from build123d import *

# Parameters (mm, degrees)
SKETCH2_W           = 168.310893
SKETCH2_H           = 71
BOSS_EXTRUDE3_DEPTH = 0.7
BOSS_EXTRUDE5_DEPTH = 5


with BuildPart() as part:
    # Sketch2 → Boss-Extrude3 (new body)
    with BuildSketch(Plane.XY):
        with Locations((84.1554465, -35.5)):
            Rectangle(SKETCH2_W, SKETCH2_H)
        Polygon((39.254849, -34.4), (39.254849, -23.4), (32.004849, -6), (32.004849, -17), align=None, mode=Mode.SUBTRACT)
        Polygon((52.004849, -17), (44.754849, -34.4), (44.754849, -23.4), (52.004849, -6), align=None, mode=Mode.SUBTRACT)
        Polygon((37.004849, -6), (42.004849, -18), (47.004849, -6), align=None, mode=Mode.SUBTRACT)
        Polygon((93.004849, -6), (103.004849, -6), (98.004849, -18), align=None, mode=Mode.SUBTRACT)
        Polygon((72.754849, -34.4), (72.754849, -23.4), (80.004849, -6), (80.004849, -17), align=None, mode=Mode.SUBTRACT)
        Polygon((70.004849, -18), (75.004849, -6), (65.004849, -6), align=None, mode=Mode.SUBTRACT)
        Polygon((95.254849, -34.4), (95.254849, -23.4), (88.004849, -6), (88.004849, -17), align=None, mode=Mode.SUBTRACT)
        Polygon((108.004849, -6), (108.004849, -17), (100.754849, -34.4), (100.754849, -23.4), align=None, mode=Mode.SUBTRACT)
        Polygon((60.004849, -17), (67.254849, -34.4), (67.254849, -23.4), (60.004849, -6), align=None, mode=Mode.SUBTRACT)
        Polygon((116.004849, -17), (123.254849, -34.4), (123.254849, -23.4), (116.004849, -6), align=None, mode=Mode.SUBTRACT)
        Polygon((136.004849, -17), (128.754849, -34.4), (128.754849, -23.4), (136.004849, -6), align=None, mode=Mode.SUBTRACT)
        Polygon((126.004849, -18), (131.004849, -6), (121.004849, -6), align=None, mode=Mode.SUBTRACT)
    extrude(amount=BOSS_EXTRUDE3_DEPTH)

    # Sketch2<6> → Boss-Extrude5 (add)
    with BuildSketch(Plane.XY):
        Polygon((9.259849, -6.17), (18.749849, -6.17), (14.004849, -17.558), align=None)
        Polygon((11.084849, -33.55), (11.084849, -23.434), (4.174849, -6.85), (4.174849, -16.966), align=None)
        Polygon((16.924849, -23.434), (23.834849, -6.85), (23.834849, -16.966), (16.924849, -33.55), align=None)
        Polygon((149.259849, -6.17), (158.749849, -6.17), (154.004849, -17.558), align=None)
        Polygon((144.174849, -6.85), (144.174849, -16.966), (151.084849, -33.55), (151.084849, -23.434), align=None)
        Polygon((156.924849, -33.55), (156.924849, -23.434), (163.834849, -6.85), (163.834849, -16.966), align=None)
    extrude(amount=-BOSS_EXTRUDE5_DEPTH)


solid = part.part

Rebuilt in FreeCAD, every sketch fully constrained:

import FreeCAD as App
import Part
import Sketcher

doc = App.newDocument("Part")
body = doc.addObject("PartDesign::Body", "Body")

sketch1 = doc.addObject("Sketcher::SketchObject", "Sketch")
body.addObject(sketch1)
sketch1.AttachmentSupport = (doc.XY_Plane, [""])
sketch1.MapMode = "FlatFace"
sketch1.addGeometry([
    Part.LineSegment(App.Vector(0, 0, 0), App.Vector(0, -71, 0)),
    Part.LineSegment(App.Vector(0, -71, 0), App.Vector(168.310893, -71, 0)),
    Part.LineSegment(App.Vector(168.310893, -71, 0), App.Vector(168.310893, 0, 0)),
    Part.LineSegment(App.Vector(168.310893, 0, 0), App.Vector(0, 0, 0)),
    Part.LineSegment(App.Vector(39.254849, -23.4, 0), App.Vector(39.254849, -34.4, 0)),
    Part.LineSegment(App.Vector(39.254849, -34.4, 0), App.Vector(32.004849, -17, 0)),
    Part.LineSegment(App.Vector(32.004849, -17, 0), App.Vector(32.004849, -6, 0)),
    Part.LineSegment(App.Vector(32.004849, -6, 0), App.Vector(39.254849, -23.4, 0)),
    Part.LineSegment(App.Vector(52.004849, -6, 0), App.Vector(52.004849, -17, 0)),
    Part.LineSegment(App.Vector(52.004849, -17, 0), App.Vector(44.754849, -34.4, 0)),
    Part.LineSegment(App.Vector(44.754849, -34.4, 0), App.Vector(44.754849, -23.4, 0)),
    Part.LineSegment(App.Vector(44.754849, -23.4, 0), App.Vector(52.004849, -6, 0)),
    Part.LineSegment(App.Vector(67.254849, -34.4, 0), App.Vector(60.004849, -17, 0)),
    Part.LineSegment(App.Vector(60.004849, -17, 0), App.Vector(60.004849, -6, 0)),
    Part.LineSegment(App.Vector(60.004849, -6, 0), App.Vector(67.254849, -23.4, 0)),
    Part.LineSegment(App.Vector(67.254849, -23.4, 0), App.Vector(67.254849, -34.4, 0)),
    Part.LineSegment(App.Vector(80.004849, -17, 0), App.Vector(72.754849, -34.4, 0)),
    Part.LineSegment(App.Vector(72.754849, -34.4, 0), App.Vector(72.754849, -23.4, 0)),
    Part.LineSegment(App.Vector(72.754849, -23.4, 0), App.Vector(80.004849, -6, 0)),
    Part.LineSegment(App.Vector(80.004849, -6, 0), App.Vector(80.004849, -17, 0)),
    Part.LineSegment(App.Vector(42.004849, -18, 0), App.Vector(37.004849, -6, 0)),
    Part.LineSegment(App.Vector(37.004849, -6, 0), App.Vector(47.004849, -6, 0)),
    Part.LineSegment(App.Vector(47.004849, -6, 0), App.Vector(42.004849, -18, 0)),
    Part.LineSegment(App.Vector(75.004849, -6, 0), App.Vector(70.004849, -18, 0)),
    Part.LineSegment(App.Vector(70.004849, -18, 0), App.Vector(65.004849, -6, 0)),
    Part.LineSegment(App.Vector(65.004849, -6, 0), App.Vector(75.004849, -6, 0)),
    Part.LineSegment(App.Vector(95.254849, -23.4, 0), App.Vector(95.254849, -34.4, 0)),
    Part.LineSegment(App.Vector(95.254849, -34.4, 0), App.Vector(88.004849, -17, 0)),
    Part.LineSegment(App.Vector(88.004849, -17, 0), App.Vector(88.004849, -6, 0)),
    Part.LineSegment(App.Vector(88.004849, -6, 0), App.Vector(95.254849, -23.4, 0)),
    Part.LineSegment(App.Vector(100.754849, -23.4, 0), App.Vector(108.004849, -6, 0)),
    Part.LineSegment(App.Vector(108.004849, -6, 0), App.Vector(108.004849, -17, 0)),
    Part.LineSegment(App.Vector(108.004849, -17, 0), App.Vector(100.754849, -34.4, 0)),
    Part.LineSegment(App.Vector(100.754849, -34.4, 0), App.Vector(100.754849, -23.4, 0)),
    Part.LineSegment(App.Vector(123.254849, -34.4, 0), App.Vector(116.004849, -17, 0)),
    Part.LineSegment(App.Vector(116.004849, -17, 0), App.Vector(116.004849, -6, 0)),
    Part.LineSegment(App.Vector(116.004849, -6, 0), App.Vector(123.254849, -23.4, 0)),
    Part.LineSegment(App.Vector(123.254849, -23.4, 0), App.Vector(123.254849, -34.4, 0)),
    Part.LineSegment(App.Vector(136.004849, -6, 0), App.Vector(136.004849, -17, 0)),
    Part.LineSegment(App.Vector(136.004849, -17, 0), App.Vector(128.754849, -34.4, 0)),
    Part.LineSegment(App.Vector(128.754849, -34.4, 0), App.Vector(128.754849, -23.4, 0)),
    Part.LineSegment(App.Vector(128.754849, -23.4, 0), App.Vector(136.004849, -6, 0)),
    Part.LineSegment(App.Vector(98.004849, -18, 0), App.Vector(93.004849, -6, 0)),
    Part.LineSegment(App.Vector(93.004849, -6, 0), App.Vector(103.004849, -6, 0)),
    Part.LineSegment(App.Vector(103.004849, -6, 0), App.Vector(98.004849, -18, 0)),
    Part.LineSegment(App.Vector(131.004849, -6, 0), App.Vector(126.004849, -18, 0)),
    Part.LineSegment(App.Vector(126.004849, -18, 0), App.Vector(121.004849, -6, 0)),
    Part.LineSegment(App.Vector(121.004849, -6, 0), App.Vector(131.004849, -6, 0)),
], False)
sketch1.addConstraint([
    Sketcher.Constraint("Coincident", 0, 2, 1, 1),
    Sketcher.Constraint("Coincident", 1, 2, 2, 1),
    Sketcher.Constraint("Coincident", 2, 2, 3, 1),
    Sketcher.Constraint("Coincident", 3, 2, 0, 1),
    Sketcher.Constraint("Coincident", 4, 2, 5, 1),
    Sketcher.Constraint("Coincident", 5, 2, 6, 1),
    Sketcher.Constraint("Coincident", 6, 2, 7, 1),
    Sketcher.Constraint("Coincident", 7, 2, 4, 1),
    Sketcher.Constraint("Coincident", 8, 2, 9, 1),
    Sketcher.Constraint("Coincident", 9, 2, 10, 1),
    Sketcher.Constraint("Coincident", 10, 2, 11, 1),
    Sketcher.Constraint("Coincident", 11, 2, 8, 1),
    Sketcher.Constraint("Coincident", 12, 2, 13, 1),
    Sketcher.Constraint("Coincident", 13, 2, 14, 1),
    Sketcher.Constraint("Coincident", 14, 2, 15, 1),
    Sketcher.Constraint("Coincident", 15, 2, 12, 1),
    Sketcher.Constraint("Coincident", 16, 2, 17, 1),
    Sketcher.Constraint("Coincident", 17, 2, 18, 1),
    Sketcher.Constraint("Coincident", 18, 2, 19, 1),
    Sketcher.Constraint("Coincident", 19, 2, 16, 1),
    Sketcher.Constraint("Coincident", 20, 2, 21, 1),
    Sketcher.Constraint("Coincident", 21, 2, 22, 1),
    Sketcher.Constraint("Coincident", 22, 2, 20, 1),
    Sketcher.Constraint("Coincident", 23, 2, 24, 1),
    Sketcher.Constraint("Coincident", 24, 2, 25, 1),
    Sketcher.Constraint("Coincident", 25, 2, 23, 1),
    Sketcher.Constraint("Coincident", 26, 2, 27, 1),
    Sketcher.Constraint("Coincident", 27, 2, 28, 1),
    Sketcher.Constraint("Coincident", 28, 2, 29, 1),
    Sketcher.Constraint("Coincident", 29, 2, 26, 1),
    Sketcher.Constraint("Coincident", 30, 2, 31, 1),
    Sketcher.Constraint("Coincident", 31, 2, 32, 1),
    Sketcher.Constraint("Coincident", 32, 2, 33, 1),
    Sketcher.Constraint("Coincident", 33, 2, 30, 1),
    Sketcher.Constraint("Coincident", 34, 2, 35, 1),
    Sketcher.Constraint("Coincident", 35, 2, 36, 1),
    Sketcher.Constraint("Coincident", 36, 2, 37, 1),
    Sketcher.Constraint("Coincident", 37, 2, 34, 1),
    Sketcher.Constraint("Coincident", 38, 2, 39, 1),
    Sketcher.Constraint("Coincident", 39, 2, 40, 1),
    Sketcher.Constraint("Coincident", 40, 2, 41, 1),
    Sketcher.Constraint("Coincident", 41, 2, 38, 1),
    Sketcher.Constraint("Coincident", 42, 2, 43, 1),
    Sketcher.Constraint("Coincident", 43, 2, 44, 1),
    Sketcher.Constraint("Coincident", 44, 2, 42, 1),
    Sketcher.Constraint("Coincident", 45, 2, 46, 1),
    Sketcher.Constraint("Coincident", 46, 2, 47, 1),
    Sketcher.Constraint("Coincident", 47, 2, 45, 1),
    Sketcher.Constraint("Vertical", 0),
    Sketcher.Constraint("Horizontal", 1),
    Sketcher.Constraint("Vertical", 2),
    Sketcher.Constraint("Horizontal", 3),
    Sketcher.Constraint("Vertical", 4),
    Sketcher.Constraint("Vertical", 6),
    Sketcher.Constraint("Vertical", 8),
    Sketcher.Constraint("Vertical", 10),
    Sketcher.Constraint("Vertical", 13),
    Sketcher.Constraint("Vertical", 15),
    Sketcher.Constraint("Vertical", 17),
    Sketcher.Constraint("Vertical", 19),
    Sketcher.Constraint("Horizontal", 21),
    Sketcher.Constraint("Horizontal", 25),
    Sketcher.Constraint("Vertical", 26),
    Sketcher.Constraint("Vertical", 28),
    Sketcher.Constraint("Vertical", 31),
    Sketcher.Constraint("Vertical", 33),
    Sketcher.Constraint("Vertical", 35),
    Sketcher.Constraint("Vertical", 37),
    Sketcher.Constraint("Vertical", 38),
    Sketcher.Constraint("Vertical", 40),
    Sketcher.Constraint("Horizontal", 43),
    Sketcher.Constraint("Horizontal", 47),
    Sketcher.Constraint("Coincident", 3, 2, -1, 1),
    Sketcher.Constraint("Parallel", 5, 7),
    Sketcher.Constraint("Parallel", 9, 11),
    Sketcher.Constraint("Parallel", 7, 12),
    Sketcher.Constraint("Parallel", 12, 14),
    Sketcher.Constraint("Parallel", 11, 16),
    Sketcher.Constraint("Parallel", 16, 18),
    Sketcher.Constraint("Parallel", 14, 20),
    Sketcher.Constraint("Parallel", 18, 22),
    Sketcher.Constraint("Parallel", 22, 23),
    Sketcher.Constraint("Parallel", 20, 24),
    Sketcher.Constraint("Parallel", 24, 27),
    Sketcher.Constraint("Parallel", 27, 29),
    Sketcher.Constraint("Parallel", 23, 30),
    Sketcher.Constraint("Parallel", 30, 32),
    Sketcher.Constraint("Parallel", 29, 34),
    Sketcher.Constraint("Parallel", 34, 36),
    Sketcher.Constraint("Parallel", 32, 39),
    Sketcher.Constraint("Parallel", 39, 41),
    Sketcher.Constraint("Parallel", 36, 42),
    Sketcher.Constraint("Parallel", 41, 44),
    Sketcher.Constraint("Parallel", 44, 45),
    Sketcher.Constraint("Parallel", 42, 46),
    Sketcher.Constraint("Horizontal", 5, 2, 8, 2),
    Sketcher.Constraint("Horizontal", 4, 2, 9, 2),
    Sketcher.Constraint("Horizontal", 7, 2, 10, 2),
    Sketcher.Constraint("Horizontal", 8, 2, 12, 2),
    Sketcher.Constraint("Horizontal", 11, 2, 13, 2),
    Sketcher.Constraint("Horizontal", 10, 2, 14, 2),
    Sketcher.Constraint("Horizontal", 15, 2, 16, 2),
    Sketcher.Constraint("Horizontal", 14, 2, 17, 2),
    Sketcher.Constraint("Horizontal", 13, 2, 18, 2),
    Sketcher.Constraint("Horizontal", 18, 2, 20, 2),
    Sketcher.Constraint("Horizontal", 22, 2, 23, 2),
    Sketcher.Constraint("Horizontal", 21, 2, 24, 2),
    Sketcher.Constraint("Horizontal", 16, 2, 26, 2),
    Sketcher.Constraint("Horizontal", 19, 2, 27, 2),
    Sketcher.Constraint("Horizontal", 25, 2, 28, 2),
    Sketcher.Constraint("Horizontal", 28, 2, 30, 2),
    Sketcher.Constraint("Horizontal", 27, 2, 31, 2),
    Sketcher.Constraint("Horizontal", 26, 2, 32, 2),
    Sketcher.Constraint("Horizontal", 31, 2, 34, 2),
    Sketcher.Constraint("Horizontal", 30, 2, 35, 2),
    Sketcher.Constraint("Horizontal", 33, 2, 36, 2),
    Sketcher.Constraint("Horizontal", 34, 2, 38, 2),
    Sketcher.Constraint("Horizontal", 37, 2, 39, 2),
    Sketcher.Constraint("Horizontal", 36, 2, 40, 2),
    Sketcher.Constraint("Horizontal", 41, 2, 42, 2),
    Sketcher.Constraint("Horizontal", 23, 2, 44, 2),
    Sketcher.Constraint("Horizontal", 44, 2, 45, 2),
    Sketcher.Constraint("Horizontal", 43, 2, 46, 2),
    Sketcher.Constraint("Equal", 7, 9),
    Sketcher.Constraint("DistanceX", 21, 1, 21, 2, 10.0),
    Sketcher.Constraint("DistanceY", 0, 2, 0, 1, 71.0),
    Sketcher.Constraint("DistanceY", 4, 2, 4, 1, 11.0),
    Sketcher.Constraint("Distance", 20, 13.0),
    Sketcher.Constraint("DistanceY", 5, 2, -1, 1, 17.0),
    Sketcher.Constraint("DistanceX", 5, 2, 8, 2, 20.0),
    Sketcher.Constraint("DistanceX", 8, 2, 12, 2, 8.0),
    Sketcher.Constraint("DistanceX", 9, 2, 16, 2, 28.0),
    Sketcher.Constraint("DistanceX", 6, 2, 20, 2, 5.0),
    Sketcher.Constraint("DistanceX", 12, 2, 23, 2, 10.0),
    Sketcher.Constraint("DistanceX", 15, 2, 26, 2, 28.0),
    Sketcher.Constraint("DistanceX", 28, 2, 30, 2, 20.0),
    Sketcher.Constraint("DistanceX", 31, 2, 34, 2, 8.0),
    Sketcher.Constraint("DistanceX", 34, 2, 38, 2, 20.0),
    Sketcher.Constraint("DistanceX", 28, 2, 42, 2, 5.0),
    Sketcher.Constraint("DistanceX", 34, 2, 45, 2, 10.0),
    Sketcher.Constraint("DistanceY", 4, 2, -1, 1, 34.4),
    Sketcher.Constraint("DistanceX", 1, 1, 1, 2, 168.310893),
    Sketcher.Constraint("DistanceX", -1, 1, 4, 2, 39.254849),
])
pad1 = doc.addObject("PartDesign::Pad", "Pad")
body.addObject(pad1)
pad1.Profile = sketch1
pad1.Length = 0.7

sketch2 = doc.addObject("Sketcher::SketchObject", "Sketch001")
body.addObject(sketch2)
sketch2.AttachmentSupport = (doc.XY_Plane, [""])
sketch2.MapMode = "FlatFace"
sketch2.addGeometry([
    Part.LineSegment(App.Vector(18.749849, -6.17, 0), App.Vector(9.259849, -6.17, 0)),
    Part.LineSegment(App.Vector(9.259849, -6.17, 0), App.Vector(14.004849, -17.558, 0)),
    Part.LineSegment(App.Vector(14.004849, -17.558, 0), App.Vector(18.749849, -6.17, 0)),
    Part.LineSegment(App.Vector(11.084849, -33.55, 0), App.Vector(11.084849, -23.434, 0)),
    Part.LineSegment(App.Vector(11.084849, -23.434, 0), App.Vector(4.174849, -6.85, 0)),
    Part.LineSegment(App.Vector(4.174849, -6.85, 0), App.Vector(4.174849, -16.966, 0)),
    Part.LineSegment(App.Vector(4.174849, -16.966, 0), App.Vector(11.084849, -33.55, 0)),
    Part.LineSegment(App.Vector(23.834849, -6.85, 0), App.Vector(16.924849, -23.434, 0)),
    Part.LineSegment(App.Vector(16.924849, -23.434, 0), App.Vector(16.924849, -33.55, 0)),
    Part.LineSegment(App.Vector(16.924849, -33.55, 0), App.Vector(23.834849, -16.966, 0)),
    Part.LineSegment(App.Vector(23.834849, -16.966, 0), App.Vector(23.834849, -6.85, 0)),
    Part.LineSegment(App.Vector(158.749849, -6.17, 0), App.Vector(149.259849, -6.17, 0)),
    Part.LineSegment(App.Vector(149.259849, -6.17, 0), App.Vector(154.004849, -17.558, 0)),
    Part.LineSegment(App.Vector(154.004849, -17.558, 0), App.Vector(158.749849, -6.17, 0)),
    Part.LineSegment(App.Vector(144.174849, -6.85, 0), App.Vector(144.174849, -16.966, 0)),
    Part.LineSegment(App.Vector(144.174849, -16.966, 0), App.Vector(151.084849, -33.55, 0)),
    Part.LineSegment(App.Vector(151.084849, -33.55, 0), App.Vector(151.084849, -23.434, 0)),
    Part.LineSegment(App.Vector(151.084849, -23.434, 0), App.Vector(144.174849, -6.85, 0)),
    Part.LineSegment(App.Vector(156.924849, -23.434, 0), App.Vector(156.924849, -33.55, 0)),
    Part.LineSegment(App.Vector(156.924849, -33.55, 0), App.Vector(163.834849, -16.966, 0)),
    Part.LineSegment(App.Vector(163.834849, -16.966, 0), App.Vector(163.834849, -6.85, 0)),
    Part.LineSegment(App.Vector(163.834849, -6.85, 0), App.Vector(156.924849, -23.434, 0)),
], False)
sketch2.addConstraint([
    Sketcher.Constraint("Coincident", 0, 2, 1, 1),
    Sketcher.Constraint("Coincident", 1, 2, 2, 1),
    Sketcher.Constraint("Coincident", 2, 2, 0, 1),
    Sketcher.Constraint("Coincident", 3, 2, 4, 1),
    Sketcher.Constraint("Coincident", 4, 2, 5, 1),
    Sketcher.Constraint("Coincident", 5, 2, 6, 1),
    Sketcher.Constraint("Coincident", 6, 2, 3, 1),
    Sketcher.Constraint("Coincident", 7, 2, 8, 1),
    Sketcher.Constraint("Coincident", 8, 2, 9, 1),
    Sketcher.Constraint("Coincident", 9, 2, 10, 1),
    Sketcher.Constraint("Coincident", 10, 2, 7, 1),
    Sketcher.Constraint("Coincident", 11, 2, 12, 1),
    Sketcher.Constraint("Coincident", 12, 2, 13, 1),
    Sketcher.Constraint("Coincident", 13, 2, 11, 1),
    Sketcher.Constraint("Coincident", 14, 2, 15, 1),
    Sketcher.Constraint("Coincident", 15, 2, 16, 1),
    Sketcher.Constraint("Coincident", 16, 2, 17, 1),
    Sketcher.Constraint("Coincident", 17, 2, 14, 1),
    Sketcher.Constraint("Coincident", 18, 2, 19, 1),
    Sketcher.Constraint("Coincident", 19, 2, 20, 1),
    Sketcher.Constraint("Coincident", 20, 2, 21, 1),
    Sketcher.Constraint("Coincident", 21, 2, 18, 1),
    Sketcher.Constraint("Horizontal", 0),
    Sketcher.Constraint("Vertical", 3),
    Sketcher.Constraint("Vertical", 5),
    Sketcher.Constraint("Vertical", 8),
    Sketcher.Constraint("Vertical", 10),
    Sketcher.Constraint("Horizontal", 11),
    Sketcher.Constraint("Vertical", 14),
    Sketcher.Constraint("Vertical", 16),
    Sketcher.Constraint("Vertical", 18),
    Sketcher.Constraint("Vertical", 20),
    Sketcher.Constraint("Parallel", 1, 4),
    Sketcher.Constraint("Parallel", 4, 6),
    Sketcher.Constraint("Parallel", 2, 7),
    Sketcher.Constraint("Parallel", 7, 9),
    Sketcher.Constraint("Parallel", 6, 12),
    Sketcher.Constraint("Parallel", 9, 13),
    Sketcher.Constraint("Parallel", 12, 15),
    Sketcher.Constraint("Parallel", 15, 17),
    Sketcher.Constraint("Parallel", 13, 19),
    Sketcher.Constraint("Parallel", 19, 21),
    Sketcher.Constraint("Horizontal", 3, 2, 7, 2),
    Sketcher.Constraint("Horizontal", 6, 2, 8, 2),
    Sketcher.Constraint("Horizontal", 5, 2, 9, 2),
    Sketcher.Constraint("Horizontal", 2, 2, 11, 2),
    Sketcher.Constraint("Horizontal", 1, 2, 12, 2),
    Sketcher.Constraint("Horizontal", 9, 2, 14, 2),
    Sketcher.Constraint("Horizontal", 8, 2, 15, 2),
    Sketcher.Constraint("Horizontal", 7, 2, 16, 2),
    Sketcher.Constraint("Horizontal", 15, 2, 18, 2),
    Sketcher.Constraint("Horizontal", 14, 2, 19, 2),
    Sketcher.Constraint("Horizontal", 17, 2, 20, 2),
    Sketcher.Constraint("Equal", 1, 2),
    Sketcher.Constraint("DistanceX", 2, 2, 13, 2, 140.0),
    Sketcher.Constraint("DistanceX", 0, 2, 0, 1, 9.49),
    Sketcher.Constraint("DistanceY", 6, 2, 4, 2, 26.7),
    Sketcher.Constraint("DistanceY", 3, 1, 3, 2, 10.116),
    Sketcher.Constraint("DistanceY", 0, 2, -1, 1, 6.17),
    Sketcher.Constraint("DistanceY", 4, 2, -1, 1, 6.85),
    Sketcher.Constraint("DistanceX", 3, 2, 1, 2, 2.92),
    Sketcher.Constraint("DistanceX", 4, 2, 1, 2, 9.83),
    Sketcher.Constraint("DistanceX", 3, 2, 7, 2, 5.84),
    Sketcher.Constraint("DistanceX", 14, 2, 12, 2, 9.83),
    Sketcher.Constraint("DistanceX", 15, 2, 18, 2, 5.84),
    Sketcher.Constraint("DistanceX", -1, 1, 0, 2, 9.259849),
])
pad2 = doc.addObject("PartDesign::Pad", "Pad001")
body.addObject(pad2)
pad2.Profile = sketch2
pad2.Length = 5
pad2.Reversed = True

doc.recompute()
